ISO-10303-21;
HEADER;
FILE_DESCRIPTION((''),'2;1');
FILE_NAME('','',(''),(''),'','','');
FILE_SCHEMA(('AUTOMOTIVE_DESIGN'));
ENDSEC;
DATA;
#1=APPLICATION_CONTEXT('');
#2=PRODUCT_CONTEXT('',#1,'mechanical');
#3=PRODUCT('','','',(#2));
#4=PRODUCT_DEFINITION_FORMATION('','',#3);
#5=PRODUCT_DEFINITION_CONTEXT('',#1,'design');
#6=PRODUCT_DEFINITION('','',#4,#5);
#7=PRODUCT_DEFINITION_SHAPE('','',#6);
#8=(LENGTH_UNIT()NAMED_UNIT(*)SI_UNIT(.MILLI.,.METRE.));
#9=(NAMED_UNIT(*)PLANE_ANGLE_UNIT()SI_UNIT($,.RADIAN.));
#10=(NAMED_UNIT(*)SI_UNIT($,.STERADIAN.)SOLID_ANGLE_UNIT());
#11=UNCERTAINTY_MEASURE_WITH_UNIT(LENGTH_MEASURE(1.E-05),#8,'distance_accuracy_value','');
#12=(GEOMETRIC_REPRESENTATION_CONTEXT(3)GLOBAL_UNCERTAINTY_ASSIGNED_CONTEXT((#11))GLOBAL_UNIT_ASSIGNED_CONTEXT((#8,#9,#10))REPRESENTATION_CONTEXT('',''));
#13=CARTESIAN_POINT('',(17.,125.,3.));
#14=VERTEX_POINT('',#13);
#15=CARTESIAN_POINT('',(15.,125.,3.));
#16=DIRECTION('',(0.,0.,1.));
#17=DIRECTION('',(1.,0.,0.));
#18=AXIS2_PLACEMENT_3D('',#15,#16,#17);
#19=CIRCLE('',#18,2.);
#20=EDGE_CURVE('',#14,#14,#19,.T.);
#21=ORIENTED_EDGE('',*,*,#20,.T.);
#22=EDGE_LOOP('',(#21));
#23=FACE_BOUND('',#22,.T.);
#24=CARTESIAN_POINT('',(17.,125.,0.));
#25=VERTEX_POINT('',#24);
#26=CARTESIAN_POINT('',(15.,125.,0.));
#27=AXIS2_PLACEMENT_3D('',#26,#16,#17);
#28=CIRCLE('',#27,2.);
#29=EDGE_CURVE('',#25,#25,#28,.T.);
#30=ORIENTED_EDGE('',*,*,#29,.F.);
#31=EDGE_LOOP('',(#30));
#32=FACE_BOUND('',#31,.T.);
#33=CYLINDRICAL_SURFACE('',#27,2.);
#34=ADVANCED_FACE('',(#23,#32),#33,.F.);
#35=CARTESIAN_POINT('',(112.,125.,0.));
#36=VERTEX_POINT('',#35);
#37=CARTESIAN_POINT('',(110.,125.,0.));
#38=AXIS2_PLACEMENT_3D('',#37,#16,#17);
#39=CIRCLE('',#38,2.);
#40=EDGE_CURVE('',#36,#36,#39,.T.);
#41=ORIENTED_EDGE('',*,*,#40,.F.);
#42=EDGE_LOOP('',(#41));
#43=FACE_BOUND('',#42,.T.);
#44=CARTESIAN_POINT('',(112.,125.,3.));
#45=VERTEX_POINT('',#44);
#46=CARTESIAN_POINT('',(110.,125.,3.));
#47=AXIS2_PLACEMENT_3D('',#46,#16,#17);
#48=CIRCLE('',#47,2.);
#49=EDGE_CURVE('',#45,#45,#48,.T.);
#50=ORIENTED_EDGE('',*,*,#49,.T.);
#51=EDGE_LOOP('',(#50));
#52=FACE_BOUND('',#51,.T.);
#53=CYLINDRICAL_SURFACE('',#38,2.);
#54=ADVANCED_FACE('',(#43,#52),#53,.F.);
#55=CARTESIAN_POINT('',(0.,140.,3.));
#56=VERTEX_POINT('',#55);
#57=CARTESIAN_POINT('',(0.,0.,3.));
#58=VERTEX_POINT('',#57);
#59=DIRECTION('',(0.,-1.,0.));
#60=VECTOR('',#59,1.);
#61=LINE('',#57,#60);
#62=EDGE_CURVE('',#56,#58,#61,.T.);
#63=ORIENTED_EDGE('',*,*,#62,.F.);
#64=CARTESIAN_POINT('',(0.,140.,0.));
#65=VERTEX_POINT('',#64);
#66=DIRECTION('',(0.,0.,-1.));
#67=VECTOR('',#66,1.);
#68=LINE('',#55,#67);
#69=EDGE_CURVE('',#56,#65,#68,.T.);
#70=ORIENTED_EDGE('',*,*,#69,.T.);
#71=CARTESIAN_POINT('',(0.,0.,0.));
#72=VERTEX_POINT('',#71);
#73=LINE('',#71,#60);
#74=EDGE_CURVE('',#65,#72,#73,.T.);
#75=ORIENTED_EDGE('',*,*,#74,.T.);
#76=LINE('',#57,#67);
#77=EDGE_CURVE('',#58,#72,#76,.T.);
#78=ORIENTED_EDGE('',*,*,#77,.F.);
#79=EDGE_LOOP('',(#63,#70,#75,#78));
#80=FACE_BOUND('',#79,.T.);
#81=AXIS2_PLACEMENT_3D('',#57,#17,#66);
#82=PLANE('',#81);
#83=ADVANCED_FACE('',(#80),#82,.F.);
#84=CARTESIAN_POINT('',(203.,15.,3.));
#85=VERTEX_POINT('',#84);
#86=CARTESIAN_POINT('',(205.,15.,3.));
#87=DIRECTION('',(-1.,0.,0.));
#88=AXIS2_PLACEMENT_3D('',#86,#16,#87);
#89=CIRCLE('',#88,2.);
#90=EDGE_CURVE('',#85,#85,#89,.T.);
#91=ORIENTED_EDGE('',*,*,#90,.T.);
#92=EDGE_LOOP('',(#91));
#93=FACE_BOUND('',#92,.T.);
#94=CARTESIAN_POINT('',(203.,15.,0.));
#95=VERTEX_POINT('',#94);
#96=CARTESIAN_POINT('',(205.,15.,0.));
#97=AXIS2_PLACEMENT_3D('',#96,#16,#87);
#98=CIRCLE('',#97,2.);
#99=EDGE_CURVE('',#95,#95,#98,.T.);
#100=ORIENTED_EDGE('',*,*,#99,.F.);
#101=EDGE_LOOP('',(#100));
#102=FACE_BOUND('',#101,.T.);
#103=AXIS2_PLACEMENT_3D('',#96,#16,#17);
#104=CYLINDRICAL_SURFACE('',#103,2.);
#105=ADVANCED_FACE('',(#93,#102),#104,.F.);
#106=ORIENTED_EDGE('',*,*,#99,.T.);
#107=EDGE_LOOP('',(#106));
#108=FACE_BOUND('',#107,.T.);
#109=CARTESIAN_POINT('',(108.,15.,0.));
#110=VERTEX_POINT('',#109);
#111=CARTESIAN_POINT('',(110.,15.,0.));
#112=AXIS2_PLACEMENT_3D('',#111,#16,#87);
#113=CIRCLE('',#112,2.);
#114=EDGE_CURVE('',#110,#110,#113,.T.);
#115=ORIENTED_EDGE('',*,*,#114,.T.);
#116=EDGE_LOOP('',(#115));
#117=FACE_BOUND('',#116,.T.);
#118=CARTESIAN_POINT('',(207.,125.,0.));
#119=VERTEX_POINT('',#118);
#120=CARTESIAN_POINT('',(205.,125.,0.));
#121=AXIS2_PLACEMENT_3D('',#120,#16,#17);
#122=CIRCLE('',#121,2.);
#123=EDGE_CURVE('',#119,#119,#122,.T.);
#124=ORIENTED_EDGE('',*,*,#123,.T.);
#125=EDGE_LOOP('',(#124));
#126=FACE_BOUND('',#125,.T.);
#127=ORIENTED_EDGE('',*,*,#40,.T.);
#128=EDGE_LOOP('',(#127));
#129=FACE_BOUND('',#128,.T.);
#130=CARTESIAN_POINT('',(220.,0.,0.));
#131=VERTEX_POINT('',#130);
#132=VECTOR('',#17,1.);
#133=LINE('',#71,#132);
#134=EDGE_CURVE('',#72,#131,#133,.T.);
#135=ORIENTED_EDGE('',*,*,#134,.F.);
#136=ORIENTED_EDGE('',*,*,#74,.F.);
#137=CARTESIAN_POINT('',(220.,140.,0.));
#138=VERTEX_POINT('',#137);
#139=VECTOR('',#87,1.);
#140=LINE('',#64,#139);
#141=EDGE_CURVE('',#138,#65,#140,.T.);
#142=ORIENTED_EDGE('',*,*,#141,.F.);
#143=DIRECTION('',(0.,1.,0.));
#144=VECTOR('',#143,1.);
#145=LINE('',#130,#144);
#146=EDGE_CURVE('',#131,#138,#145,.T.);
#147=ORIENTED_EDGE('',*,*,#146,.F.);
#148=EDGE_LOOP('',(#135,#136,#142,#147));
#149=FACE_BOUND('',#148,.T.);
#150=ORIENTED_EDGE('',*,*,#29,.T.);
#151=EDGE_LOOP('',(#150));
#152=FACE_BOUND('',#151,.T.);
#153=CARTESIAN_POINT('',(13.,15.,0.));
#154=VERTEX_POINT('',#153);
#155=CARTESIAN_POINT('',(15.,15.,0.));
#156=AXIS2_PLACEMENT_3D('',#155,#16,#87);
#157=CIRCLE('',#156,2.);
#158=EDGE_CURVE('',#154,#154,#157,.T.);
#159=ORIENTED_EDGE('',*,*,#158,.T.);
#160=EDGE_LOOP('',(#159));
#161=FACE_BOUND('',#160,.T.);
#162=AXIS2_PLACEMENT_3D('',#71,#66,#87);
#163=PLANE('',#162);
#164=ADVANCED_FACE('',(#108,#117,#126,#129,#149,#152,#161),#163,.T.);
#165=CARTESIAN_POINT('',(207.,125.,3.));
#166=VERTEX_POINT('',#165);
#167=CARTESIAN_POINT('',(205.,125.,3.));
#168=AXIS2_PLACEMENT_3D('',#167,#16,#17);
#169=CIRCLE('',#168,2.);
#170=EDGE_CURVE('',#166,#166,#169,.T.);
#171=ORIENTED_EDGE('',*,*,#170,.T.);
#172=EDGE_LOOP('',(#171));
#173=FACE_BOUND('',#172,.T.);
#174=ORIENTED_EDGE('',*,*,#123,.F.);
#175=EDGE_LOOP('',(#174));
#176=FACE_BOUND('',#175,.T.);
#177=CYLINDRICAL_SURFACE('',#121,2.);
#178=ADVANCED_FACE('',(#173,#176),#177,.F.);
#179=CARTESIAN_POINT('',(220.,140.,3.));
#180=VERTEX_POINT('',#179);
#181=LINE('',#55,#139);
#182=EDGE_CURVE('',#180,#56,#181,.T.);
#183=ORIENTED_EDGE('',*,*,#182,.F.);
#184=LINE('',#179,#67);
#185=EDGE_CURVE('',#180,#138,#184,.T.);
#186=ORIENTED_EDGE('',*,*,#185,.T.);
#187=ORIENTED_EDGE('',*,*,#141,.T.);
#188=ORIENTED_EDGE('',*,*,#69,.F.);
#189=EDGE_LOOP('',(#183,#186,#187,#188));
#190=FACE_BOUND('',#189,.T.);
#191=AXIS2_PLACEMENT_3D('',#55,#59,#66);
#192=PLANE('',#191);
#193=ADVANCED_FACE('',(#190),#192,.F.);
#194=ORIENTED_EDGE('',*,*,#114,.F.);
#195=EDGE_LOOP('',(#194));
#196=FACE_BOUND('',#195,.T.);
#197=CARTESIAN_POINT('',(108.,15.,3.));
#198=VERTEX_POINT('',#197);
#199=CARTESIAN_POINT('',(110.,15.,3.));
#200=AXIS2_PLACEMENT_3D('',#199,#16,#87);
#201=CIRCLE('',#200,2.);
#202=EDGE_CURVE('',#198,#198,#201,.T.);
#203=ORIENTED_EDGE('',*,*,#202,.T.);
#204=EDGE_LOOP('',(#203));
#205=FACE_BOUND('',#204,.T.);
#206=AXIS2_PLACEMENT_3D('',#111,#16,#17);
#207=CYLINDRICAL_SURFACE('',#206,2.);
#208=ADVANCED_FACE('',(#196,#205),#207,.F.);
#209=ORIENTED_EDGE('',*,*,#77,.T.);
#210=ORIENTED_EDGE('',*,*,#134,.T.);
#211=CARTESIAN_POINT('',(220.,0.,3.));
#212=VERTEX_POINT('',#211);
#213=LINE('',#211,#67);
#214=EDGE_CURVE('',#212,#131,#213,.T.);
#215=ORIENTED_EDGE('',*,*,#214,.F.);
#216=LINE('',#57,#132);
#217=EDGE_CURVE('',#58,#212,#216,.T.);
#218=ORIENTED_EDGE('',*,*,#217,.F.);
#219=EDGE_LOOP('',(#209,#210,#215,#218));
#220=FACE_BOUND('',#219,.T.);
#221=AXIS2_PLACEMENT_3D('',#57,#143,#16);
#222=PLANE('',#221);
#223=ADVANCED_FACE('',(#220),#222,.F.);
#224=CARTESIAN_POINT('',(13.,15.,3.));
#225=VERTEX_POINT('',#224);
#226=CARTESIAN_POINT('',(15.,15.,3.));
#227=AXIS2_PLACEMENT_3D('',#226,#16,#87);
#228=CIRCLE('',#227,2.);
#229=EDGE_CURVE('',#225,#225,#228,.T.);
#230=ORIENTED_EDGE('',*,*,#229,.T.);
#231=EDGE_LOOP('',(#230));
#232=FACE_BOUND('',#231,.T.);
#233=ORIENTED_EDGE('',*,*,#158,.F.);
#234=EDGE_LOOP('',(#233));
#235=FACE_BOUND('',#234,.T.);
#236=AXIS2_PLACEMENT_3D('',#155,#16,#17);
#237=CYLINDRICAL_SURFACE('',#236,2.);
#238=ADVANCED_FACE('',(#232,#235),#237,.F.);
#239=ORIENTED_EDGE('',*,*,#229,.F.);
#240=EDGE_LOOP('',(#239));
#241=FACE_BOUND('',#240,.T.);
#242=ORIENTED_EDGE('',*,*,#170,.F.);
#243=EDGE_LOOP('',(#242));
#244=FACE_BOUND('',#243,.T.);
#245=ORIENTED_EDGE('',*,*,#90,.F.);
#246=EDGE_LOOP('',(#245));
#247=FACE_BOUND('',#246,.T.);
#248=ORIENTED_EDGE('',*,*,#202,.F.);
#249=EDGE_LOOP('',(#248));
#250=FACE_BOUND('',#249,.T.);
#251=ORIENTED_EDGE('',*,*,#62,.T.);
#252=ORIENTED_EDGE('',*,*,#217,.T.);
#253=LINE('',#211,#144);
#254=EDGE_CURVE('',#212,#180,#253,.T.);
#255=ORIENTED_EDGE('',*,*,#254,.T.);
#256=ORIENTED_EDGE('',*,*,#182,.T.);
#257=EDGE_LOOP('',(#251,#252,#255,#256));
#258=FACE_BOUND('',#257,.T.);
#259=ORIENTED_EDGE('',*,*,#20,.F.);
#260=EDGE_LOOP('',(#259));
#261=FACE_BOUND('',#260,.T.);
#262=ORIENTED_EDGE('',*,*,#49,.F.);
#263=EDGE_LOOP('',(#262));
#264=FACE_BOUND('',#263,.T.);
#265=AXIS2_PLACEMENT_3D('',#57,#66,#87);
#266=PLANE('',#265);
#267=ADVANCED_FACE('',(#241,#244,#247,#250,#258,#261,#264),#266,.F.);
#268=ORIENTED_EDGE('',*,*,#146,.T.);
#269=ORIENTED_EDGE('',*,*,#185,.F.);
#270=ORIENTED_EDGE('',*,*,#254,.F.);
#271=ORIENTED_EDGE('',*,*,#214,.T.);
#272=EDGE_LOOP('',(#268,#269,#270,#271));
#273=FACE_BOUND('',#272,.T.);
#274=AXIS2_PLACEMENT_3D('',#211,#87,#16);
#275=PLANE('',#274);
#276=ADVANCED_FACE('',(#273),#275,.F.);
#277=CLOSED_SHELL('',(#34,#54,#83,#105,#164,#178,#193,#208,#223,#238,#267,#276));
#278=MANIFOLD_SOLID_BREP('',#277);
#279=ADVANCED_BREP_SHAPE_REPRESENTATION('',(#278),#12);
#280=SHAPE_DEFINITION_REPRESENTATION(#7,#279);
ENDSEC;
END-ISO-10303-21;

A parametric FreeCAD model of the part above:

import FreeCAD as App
import Part
import Sketcher

V = App.Vector
Q = App.Units.Quantity

doc = App.newDocument("Part")
params = doc.addObject("Spreadsheet::Sheet", "Params")
for row, (alias, value) in enumerate([
    ("sketch1_width", "220 mm"),
    ("sketch1_height", "140 mm"),
    ("pad1_length", "3 mm"),
    ("sketch2_diameter", "4 mm"),
    ("pocket1_length", "3 mm"),
], start=1):
    params.set(f"A{row}", alias)
    params.set(f"B{row}", "=" + value)
    params.setAlias(f"B{row}", alias)

body = doc.addObject("PartDesign::Body", "Body")

sketch1 = body.newObject("Sketcher::SketchObject", "Sketch")
sketch1.AttachmentSupport = (doc.getObject("XY_Plane"), [""])
sketch1.MapMode = "FlatFace"
sketch1.addGeometry(Part.LineSegment(V(0, 140, 0), V(0, 0, 0)), False)
sketch1.addGeometry(Part.LineSegment(V(0, 0, 0), V(220, 0, 0)), False)
sketch1.addGeometry(Part.LineSegment(V(220, 0, 0), V(220, 140, 0)), False)
sketch1.addGeometry(Part.LineSegment(V(220, 140, 0), V(0, 140, 0)), False)
sketch1.addConstraint(Sketcher.Constraint("Coincident", 0, 2, 1, 1))
sketch1.addConstraint(Sketcher.Constraint("Coincident", 1, 2, 2, 1))
sketch1.addConstraint(Sketcher.Constraint("Coincident", 2, 2, 3, 1))
sketch1.addConstraint(Sketcher.Constraint("Coincident", 3, 2, 0, 1))
sketch1.addConstraint(Sketcher.Constraint("Vertical", 0))
sketch1.addConstraint(Sketcher.Constraint("Horizontal", 1))
sketch1.addConstraint(Sketcher.Constraint("Vertical", 2))
sketch1.addConstraint(Sketcher.Constraint("Horizontal", 3))
sketch1.addConstraint(Sketcher.Constraint("Coincident", 0, 2, -1, 1))
sketch1.addConstraint(Sketcher.Constraint("DistanceX", 1, 1, 1, 2, Q("220 mm")))
sketch1.addConstraint(Sketcher.Constraint("DistanceY", 0, 2, 0, 1, Q("140 mm")))
sketch1.setExpression("Constraints[9]", "Params.sketch1_width")
sketch1.setExpression("Constraints[10]", "Params.sketch1_height")
pad1 = body.newObject("PartDesign::Pad", "Pad")
pad1.Profile = sketch1
pad1.setExpression("Length", "Params.pad1_length")

sketch2 = body.newObject("Sketcher::SketchObject", "Sketch001")
sketch2.AttachmentSupport = (doc.getObject("XY_Plane"), [""])
sketch2.MapMode = "FlatFace"
sketch2.AttachmentOffset = App.Placement(V(0, 0, 3), App.Rotation())
sketch2.addGeometry(Part.Circle(V(15, 125, 0), V(0, 0, 1), 2), False)
sketch2.addGeometry(Part.Circle(V(205, 125, 0), V(0, 0, 1), 2), False)
sketch2.addGeometry(Part.Circle(V(110, 125, 0), V(0, 0, 1), 2), False)
sketch2.addGeometry(Part.Circle(V(205, 15, 0), V(0, 0, 1), 2), False)
sketch2.addGeometry(Part.Circle(V(110, 15, 0), V(0, 0, 1), 2), False)
sketch2.addGeometry(Part.Circle(V(15, 15, 0), V(0, 0, 1), 2), False)
sketch2.addConstraint(Sketcher.Constraint("Equal", 0, 1))
sketch2.addConstraint(Sketcher.Constraint("Equal", 1, 2))
sketch2.addConstraint(Sketcher.Constraint("Equal", 2, 3))
sketch2.addConstraint(Sketcher.Constraint("Equal", 3, 4))
sketch2.addConstraint(Sketcher.Constraint("Equal", 4, 5))
sketch2.addConstraint(Sketcher.Constraint("Horizontal", 0, 3, 1, 3))
sketch2.addConstraint(Sketcher.Constraint("Horizontal", 1, 3, 2, 3))
sketch2.addConstraint(Sketcher.Constraint("Horizontal", 3, 3, 4, 3))
sketch2.addConstraint(Sketcher.Constraint("Horizontal", 4, 3, 5, 3))
sketch2.addConstraint(Sketcher.Constraint("Vertical", 1, 3, 3, 3))
sketch2.addConstraint(Sketcher.Constraint("Vertical", 2, 3, 4, 3))
sketch2.addConstraint(Sketcher.Constraint("Vertical", 0, 3, 5, 3))
sketch2.addConstraint(Sketcher.Constraint("Diameter", 0, Q("4 mm")))
sketch2.addConstraint(Sketcher.Constraint("DistanceX", -1, 1, 0, 3, Q("15 mm")))
sketch2.addConstraint(Sketcher.Constraint("DistanceY", -1, 1, 0, 3, Q("125 mm")))
sketch2.addConstraint(Sketcher.Constraint("DistanceX", -1, 1, 1, 3, Q("205 mm")))
sketch2.addConstraint(Sketcher.Constraint("DistanceX", -1, 1, 2, 3, Q("110 mm")))
sketch2.addConstraint(Sketcher.Constraint("DistanceY", -1, 1, 3, 3, Q("15 mm")))
sketch2.setExpression("Constraints[12]", "Params.sketch2_diameter")
pocket1 = body.newObject("PartDesign::Pocket", "Pocket")
pocket1.Profile = sketch2
pocket1.setExpression("Length", "Params.pocket1_length")

doc.recompute()
